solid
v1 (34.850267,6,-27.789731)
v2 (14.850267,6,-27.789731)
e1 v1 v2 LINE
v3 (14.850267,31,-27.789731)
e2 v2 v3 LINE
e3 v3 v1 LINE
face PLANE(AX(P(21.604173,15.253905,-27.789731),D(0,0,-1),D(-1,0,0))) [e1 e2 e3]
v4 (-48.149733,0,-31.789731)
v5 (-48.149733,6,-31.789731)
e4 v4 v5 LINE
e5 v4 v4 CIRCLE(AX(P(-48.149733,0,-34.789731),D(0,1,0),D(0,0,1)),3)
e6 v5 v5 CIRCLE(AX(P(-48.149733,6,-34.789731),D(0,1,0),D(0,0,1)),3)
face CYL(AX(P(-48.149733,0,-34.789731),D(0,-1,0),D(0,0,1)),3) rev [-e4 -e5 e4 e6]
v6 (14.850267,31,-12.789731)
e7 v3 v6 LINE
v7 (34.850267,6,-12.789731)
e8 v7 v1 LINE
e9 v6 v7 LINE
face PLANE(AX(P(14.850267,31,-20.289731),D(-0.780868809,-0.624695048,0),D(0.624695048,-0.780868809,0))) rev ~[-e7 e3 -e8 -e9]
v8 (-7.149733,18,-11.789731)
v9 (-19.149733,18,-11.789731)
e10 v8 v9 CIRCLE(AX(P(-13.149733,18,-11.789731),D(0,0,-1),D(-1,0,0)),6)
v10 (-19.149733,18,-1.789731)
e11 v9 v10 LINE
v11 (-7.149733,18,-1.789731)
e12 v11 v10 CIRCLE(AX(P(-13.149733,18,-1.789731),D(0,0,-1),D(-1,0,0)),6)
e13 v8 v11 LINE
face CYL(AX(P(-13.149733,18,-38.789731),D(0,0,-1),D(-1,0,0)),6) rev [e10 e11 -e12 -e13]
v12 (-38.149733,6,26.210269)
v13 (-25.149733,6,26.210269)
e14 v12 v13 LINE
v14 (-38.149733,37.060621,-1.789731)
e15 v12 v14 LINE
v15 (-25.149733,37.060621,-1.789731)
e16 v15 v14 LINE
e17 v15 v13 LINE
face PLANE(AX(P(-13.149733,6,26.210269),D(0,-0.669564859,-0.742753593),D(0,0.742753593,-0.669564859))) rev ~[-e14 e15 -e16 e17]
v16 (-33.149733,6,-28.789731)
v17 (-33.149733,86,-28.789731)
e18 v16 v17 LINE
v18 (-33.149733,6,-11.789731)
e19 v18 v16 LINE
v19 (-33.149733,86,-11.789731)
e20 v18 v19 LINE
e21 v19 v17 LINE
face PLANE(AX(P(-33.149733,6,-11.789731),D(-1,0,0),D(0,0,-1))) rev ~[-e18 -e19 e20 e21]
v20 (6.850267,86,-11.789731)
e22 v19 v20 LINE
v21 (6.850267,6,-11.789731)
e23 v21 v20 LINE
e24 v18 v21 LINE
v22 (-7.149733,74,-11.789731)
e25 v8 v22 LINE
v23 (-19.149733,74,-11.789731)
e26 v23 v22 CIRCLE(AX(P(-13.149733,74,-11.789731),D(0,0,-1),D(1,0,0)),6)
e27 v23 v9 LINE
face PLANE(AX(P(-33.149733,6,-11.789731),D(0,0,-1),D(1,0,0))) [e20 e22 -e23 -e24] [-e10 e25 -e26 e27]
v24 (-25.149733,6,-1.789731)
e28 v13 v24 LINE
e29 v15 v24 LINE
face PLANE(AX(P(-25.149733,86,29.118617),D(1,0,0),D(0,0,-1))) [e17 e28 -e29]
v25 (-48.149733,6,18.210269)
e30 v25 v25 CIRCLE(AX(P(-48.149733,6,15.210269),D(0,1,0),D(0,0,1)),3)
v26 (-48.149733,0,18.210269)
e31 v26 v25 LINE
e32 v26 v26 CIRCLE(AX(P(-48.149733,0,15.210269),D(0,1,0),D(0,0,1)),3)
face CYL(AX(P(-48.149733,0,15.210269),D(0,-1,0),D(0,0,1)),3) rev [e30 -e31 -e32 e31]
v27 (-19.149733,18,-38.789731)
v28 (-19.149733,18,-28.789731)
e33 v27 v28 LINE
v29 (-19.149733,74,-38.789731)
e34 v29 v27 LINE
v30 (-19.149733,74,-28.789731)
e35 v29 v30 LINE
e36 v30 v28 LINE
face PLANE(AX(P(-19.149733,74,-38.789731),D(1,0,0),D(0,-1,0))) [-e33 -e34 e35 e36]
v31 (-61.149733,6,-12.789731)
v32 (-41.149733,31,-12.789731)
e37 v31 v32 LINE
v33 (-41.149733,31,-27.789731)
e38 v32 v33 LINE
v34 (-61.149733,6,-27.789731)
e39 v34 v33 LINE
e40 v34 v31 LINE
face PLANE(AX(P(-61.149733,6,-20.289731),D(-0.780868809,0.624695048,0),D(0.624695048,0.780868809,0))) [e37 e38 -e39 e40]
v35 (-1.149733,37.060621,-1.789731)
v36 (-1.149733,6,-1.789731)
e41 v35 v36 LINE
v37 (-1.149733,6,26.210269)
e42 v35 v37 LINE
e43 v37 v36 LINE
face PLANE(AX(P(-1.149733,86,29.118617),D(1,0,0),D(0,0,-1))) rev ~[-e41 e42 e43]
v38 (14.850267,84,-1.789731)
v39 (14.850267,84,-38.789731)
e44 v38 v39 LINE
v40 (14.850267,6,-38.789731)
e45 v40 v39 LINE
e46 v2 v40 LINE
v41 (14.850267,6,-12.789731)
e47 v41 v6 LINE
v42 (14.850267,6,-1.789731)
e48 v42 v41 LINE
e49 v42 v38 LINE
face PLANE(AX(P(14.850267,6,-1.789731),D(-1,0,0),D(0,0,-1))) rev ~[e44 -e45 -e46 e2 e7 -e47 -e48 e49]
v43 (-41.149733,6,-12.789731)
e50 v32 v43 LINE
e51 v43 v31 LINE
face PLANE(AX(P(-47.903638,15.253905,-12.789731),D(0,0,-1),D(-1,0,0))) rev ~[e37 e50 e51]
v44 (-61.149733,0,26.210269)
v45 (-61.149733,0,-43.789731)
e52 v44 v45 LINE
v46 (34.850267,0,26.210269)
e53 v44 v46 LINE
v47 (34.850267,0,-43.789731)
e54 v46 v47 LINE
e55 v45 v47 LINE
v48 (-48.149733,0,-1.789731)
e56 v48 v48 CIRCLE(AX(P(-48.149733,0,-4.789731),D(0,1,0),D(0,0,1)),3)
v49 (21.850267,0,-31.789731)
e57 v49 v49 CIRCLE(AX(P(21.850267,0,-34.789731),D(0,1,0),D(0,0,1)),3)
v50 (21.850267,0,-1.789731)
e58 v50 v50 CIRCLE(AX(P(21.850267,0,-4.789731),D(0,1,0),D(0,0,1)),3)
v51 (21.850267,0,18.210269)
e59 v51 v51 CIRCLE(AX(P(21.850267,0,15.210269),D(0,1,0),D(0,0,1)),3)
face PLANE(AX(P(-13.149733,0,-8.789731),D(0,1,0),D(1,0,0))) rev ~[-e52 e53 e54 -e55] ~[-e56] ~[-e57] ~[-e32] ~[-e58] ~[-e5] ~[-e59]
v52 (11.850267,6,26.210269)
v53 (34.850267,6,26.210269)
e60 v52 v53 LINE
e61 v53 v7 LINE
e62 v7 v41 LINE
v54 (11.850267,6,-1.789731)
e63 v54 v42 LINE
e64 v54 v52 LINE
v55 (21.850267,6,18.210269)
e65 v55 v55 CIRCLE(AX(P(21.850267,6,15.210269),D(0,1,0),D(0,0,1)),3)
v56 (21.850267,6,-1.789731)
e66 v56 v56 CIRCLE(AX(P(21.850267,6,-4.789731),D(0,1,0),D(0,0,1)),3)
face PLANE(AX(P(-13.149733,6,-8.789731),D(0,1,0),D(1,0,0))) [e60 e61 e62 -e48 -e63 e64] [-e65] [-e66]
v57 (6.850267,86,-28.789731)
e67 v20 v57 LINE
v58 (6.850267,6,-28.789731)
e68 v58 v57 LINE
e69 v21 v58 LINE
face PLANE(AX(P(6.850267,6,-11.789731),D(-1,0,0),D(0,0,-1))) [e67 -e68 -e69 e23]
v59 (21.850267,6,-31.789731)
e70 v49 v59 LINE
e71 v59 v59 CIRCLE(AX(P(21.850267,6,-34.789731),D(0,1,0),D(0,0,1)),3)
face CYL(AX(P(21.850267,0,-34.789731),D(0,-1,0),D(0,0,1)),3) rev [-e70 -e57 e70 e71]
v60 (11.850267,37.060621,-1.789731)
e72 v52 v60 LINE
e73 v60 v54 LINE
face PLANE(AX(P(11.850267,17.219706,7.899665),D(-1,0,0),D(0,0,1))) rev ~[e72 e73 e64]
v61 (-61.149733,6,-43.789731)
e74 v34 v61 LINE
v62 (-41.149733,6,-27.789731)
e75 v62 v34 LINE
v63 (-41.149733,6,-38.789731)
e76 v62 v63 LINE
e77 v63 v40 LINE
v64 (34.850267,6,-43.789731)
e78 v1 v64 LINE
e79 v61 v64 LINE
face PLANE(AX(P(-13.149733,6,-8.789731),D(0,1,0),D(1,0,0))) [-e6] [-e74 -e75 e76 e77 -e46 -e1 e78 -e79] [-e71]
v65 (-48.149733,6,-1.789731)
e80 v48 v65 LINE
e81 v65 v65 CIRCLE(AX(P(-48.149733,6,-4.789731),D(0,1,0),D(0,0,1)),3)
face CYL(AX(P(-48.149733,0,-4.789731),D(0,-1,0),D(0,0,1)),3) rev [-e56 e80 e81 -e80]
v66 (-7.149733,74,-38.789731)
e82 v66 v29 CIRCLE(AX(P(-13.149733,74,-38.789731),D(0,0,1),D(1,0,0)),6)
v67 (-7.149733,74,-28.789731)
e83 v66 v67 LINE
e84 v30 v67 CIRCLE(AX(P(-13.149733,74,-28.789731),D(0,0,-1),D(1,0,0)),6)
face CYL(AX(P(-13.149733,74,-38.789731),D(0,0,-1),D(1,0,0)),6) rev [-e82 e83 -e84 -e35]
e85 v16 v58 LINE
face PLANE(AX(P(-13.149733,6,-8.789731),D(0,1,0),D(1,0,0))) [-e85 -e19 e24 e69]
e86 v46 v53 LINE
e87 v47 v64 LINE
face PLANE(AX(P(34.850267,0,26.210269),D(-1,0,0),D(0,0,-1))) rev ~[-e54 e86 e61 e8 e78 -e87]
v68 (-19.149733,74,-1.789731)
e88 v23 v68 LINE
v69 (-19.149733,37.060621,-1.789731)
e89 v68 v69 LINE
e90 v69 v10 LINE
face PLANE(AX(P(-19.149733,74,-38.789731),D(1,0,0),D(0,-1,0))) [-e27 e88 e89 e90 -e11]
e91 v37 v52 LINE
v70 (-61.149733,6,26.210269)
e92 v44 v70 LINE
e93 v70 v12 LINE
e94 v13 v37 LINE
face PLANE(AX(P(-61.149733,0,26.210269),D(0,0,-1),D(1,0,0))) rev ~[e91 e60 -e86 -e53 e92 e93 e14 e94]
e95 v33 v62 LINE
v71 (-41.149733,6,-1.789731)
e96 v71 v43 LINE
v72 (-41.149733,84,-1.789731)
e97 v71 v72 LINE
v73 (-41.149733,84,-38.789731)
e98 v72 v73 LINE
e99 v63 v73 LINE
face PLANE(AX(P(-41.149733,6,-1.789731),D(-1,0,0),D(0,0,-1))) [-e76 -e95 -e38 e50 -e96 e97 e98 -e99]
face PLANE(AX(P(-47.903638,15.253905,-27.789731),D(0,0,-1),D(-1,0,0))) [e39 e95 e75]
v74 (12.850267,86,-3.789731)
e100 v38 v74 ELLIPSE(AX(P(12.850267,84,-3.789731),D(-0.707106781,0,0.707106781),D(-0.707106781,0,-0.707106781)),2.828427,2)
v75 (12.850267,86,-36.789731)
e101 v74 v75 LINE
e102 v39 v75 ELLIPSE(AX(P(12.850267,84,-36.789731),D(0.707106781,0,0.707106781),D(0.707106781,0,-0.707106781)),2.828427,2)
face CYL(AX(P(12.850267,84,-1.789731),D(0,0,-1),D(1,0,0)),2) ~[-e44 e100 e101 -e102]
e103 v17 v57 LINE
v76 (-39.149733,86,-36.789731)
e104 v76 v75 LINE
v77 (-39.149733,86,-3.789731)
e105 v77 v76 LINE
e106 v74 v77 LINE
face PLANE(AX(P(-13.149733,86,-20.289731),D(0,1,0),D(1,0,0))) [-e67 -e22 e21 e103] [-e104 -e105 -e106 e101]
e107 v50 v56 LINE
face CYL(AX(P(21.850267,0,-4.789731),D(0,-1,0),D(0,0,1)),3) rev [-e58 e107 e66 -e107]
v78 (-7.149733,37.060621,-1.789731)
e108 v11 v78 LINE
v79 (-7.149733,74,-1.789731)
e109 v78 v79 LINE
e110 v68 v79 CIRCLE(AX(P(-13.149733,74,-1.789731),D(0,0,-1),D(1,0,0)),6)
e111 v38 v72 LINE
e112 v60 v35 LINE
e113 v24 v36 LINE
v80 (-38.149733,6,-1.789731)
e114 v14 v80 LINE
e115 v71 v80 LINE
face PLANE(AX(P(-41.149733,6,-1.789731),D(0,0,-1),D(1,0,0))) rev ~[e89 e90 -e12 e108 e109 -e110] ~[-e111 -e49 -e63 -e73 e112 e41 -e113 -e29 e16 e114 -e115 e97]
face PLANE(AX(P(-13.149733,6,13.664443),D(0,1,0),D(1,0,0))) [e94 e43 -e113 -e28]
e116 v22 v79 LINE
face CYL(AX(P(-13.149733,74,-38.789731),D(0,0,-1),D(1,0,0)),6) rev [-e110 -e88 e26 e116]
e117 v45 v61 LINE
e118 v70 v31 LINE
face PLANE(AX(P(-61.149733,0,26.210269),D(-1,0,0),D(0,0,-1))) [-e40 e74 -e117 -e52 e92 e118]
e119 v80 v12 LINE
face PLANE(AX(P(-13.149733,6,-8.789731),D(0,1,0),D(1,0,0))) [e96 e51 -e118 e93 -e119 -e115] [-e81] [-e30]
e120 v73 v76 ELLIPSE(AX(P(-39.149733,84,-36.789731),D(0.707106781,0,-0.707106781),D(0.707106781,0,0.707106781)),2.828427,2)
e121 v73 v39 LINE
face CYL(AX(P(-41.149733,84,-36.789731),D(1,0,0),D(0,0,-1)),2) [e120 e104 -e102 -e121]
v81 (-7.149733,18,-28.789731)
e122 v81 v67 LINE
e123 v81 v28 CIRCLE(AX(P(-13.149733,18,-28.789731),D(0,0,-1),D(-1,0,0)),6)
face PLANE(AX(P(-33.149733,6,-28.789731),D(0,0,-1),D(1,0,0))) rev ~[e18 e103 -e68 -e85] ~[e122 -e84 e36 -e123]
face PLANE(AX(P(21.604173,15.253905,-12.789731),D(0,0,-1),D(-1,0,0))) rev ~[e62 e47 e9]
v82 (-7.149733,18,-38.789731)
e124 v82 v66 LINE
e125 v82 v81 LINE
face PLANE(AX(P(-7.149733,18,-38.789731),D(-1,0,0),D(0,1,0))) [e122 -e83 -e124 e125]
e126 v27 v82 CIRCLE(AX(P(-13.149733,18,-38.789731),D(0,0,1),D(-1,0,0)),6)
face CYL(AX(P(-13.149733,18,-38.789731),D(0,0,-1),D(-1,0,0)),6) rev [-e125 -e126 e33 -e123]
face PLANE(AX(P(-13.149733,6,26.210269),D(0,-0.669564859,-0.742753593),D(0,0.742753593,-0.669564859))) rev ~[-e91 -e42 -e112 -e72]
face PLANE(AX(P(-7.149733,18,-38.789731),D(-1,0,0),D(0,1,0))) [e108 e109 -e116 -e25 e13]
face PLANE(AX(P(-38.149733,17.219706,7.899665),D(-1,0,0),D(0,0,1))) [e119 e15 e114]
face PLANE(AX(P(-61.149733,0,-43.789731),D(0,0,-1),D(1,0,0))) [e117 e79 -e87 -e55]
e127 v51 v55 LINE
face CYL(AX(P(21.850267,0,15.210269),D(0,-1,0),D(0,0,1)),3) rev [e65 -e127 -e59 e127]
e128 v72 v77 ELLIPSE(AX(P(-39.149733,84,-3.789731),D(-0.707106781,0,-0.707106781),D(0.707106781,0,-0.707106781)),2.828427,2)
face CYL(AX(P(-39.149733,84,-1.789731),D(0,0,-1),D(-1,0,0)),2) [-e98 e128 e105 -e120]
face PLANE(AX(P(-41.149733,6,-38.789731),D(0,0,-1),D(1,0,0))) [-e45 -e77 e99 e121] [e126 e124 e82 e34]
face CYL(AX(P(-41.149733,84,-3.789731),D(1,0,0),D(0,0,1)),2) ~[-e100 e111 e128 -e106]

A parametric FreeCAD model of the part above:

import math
import FreeCAD as App
import Part
import Sketcher

V = App.Vector
Q = App.Units.Quantity


def edges_at(feature, points):
    """Names of the edges that pass closest to the given points."""
    edges = feature.Shape.Edges
    near = lambda p: min(range(len(edges)), key=lambda i: edges[i].distToShape(Part.Vertex(*p))[0])
    return sorted({f"Edge{near(p) + 1}" for p in points})

doc = App.newDocument("Part")
body = doc.addObject("PartDesign::Body", "Body")

sketch1 = body.newObject("Sketcher::SketchObject", "Sketch")
sketch1.AttachmentSupport = (doc.getObject("XZ_Plane"), [""])
sketch1.MapMode = "FlatFace"
sketch1.addGeometry([
    Part.LineSegment(V(-61.1, -43.8, 0), V(-61.1, 26.2, 0)),
    Part.LineSegment(V(-61.1, 26.2, 0), V(34.9, 26.2, 0)),
    Part.LineSegment(V(34.9, 26.2, 0), V(34.9, -43.8, 0)),
    Part.LineSegment(V(34.9, -43.8, 0), V(-61.1, -43.8, 0)),
    Part.Circle(V(-48.1, 15.2, 0), V(0, 0, 1), 3),
    Part.Circle(V(-48.1, -4.8, 0), V(0, 0, 1), 3),
    Part.Circle(V(21.9, 15.2, 0), V(0, 0, 1), 3),
    Part.Circle(V(21.9, -4.8, 0), V(0, 0, 1), 3),
    Part.Circle(V(-48.1, -34.8, 0), V(0, 0, 1), 3),
    Part.Circle(V(21.9, -34.8, 0), V(0, 0, 1), 3),
], False)
sketch1.addConstraint([
    Sketcher.Constraint("Coincident", 0, 2, 1, 1),
    Sketcher.Constraint("Coincident", 1, 2, 2, 1),
    Sketcher.Constraint("Coincident", 2, 2, 3, 1),
    Sketcher.Constraint("Coincident", 3, 2, 0, 1),
    Sketcher.Constraint("Vertical", 0),
    Sketcher.Constraint("Horizontal", 1),
    Sketcher.Constraint("Vertical", 2),
    Sketcher.Constraint("Horizontal", 3),
    Sketcher.Constraint("Equal", 4, 5),
    Sketcher.Constraint("Equal", 5, 6),
    Sketcher.Constraint("Equal", 6, 7),
    Sketcher.Constraint("Equal", 7, 8),
    Sketcher.Constraint("Equal", 8, 9),
    Sketcher.Constraint("Horizontal", 4, 3, 6, 3),
    Sketcher.Constraint("Horizontal", 5, 3, 7, 3),
    Sketcher.Constraint("Horizontal", 8, 3, 9, 3),
    Sketcher.Constraint("Vertical", 4, 3, 5, 3),
    Sketcher.Constraint("Vertical", 6, 3, 7, 3),
    Sketcher.Constraint("Vertical", 5, 3, 8, 3),
    Sketcher.Constraint("Vertical", 7, 3, 9, 3),
    Sketcher.Constraint("Diameter", 4, Q("6 mm")),
    Sketcher.Constraint("DistanceX", 1, 1, 1, 2, Q("96 mm")),
    Sketcher.Constraint("DistanceY", 0, 1, 0, 2, Q("70 mm")),
    Sketcher.Constraint("DistanceY", 5, 3, 4, 3, Q("20 mm")),
    Sketcher.Constraint("DistanceX", 4, 3, 6, 3, Q("70 mm")),
    Sketcher.Constraint("DistanceY", 8, 3, 5, 3, Q("30 mm")),
    Sketcher.Constraint("DistanceX", 0, 2, 4, 3, Q("13 mm")),
    Sketcher.Constraint("DistanceY", 4, 3, 0, 2, Q("11 mm")),
    Sketcher.Constraint("DistanceY", -1, 1, 4, 3, Q("15.210269 mm")),
    Sketcher.Constraint("DistanceX", 4, 3, -1, 1, Q("48.149733 mm")),
])
pad1 = body.newObject("PartDesign::Pad", "Pad")
pad1.Profile = sketch1
pad1.Length = 6
pad1.Reversed = True

sketch2 = body.newObject("Sketcher::SketchObject", "Sketch001")
sketch2.AttachmentSupport = (doc.getObject("XZ_Plane"), [""])
sketch2.MapMode = "FlatFace"
sketch2.AttachmentOffset = App.Placement(V(0, 0, -6), App.Rotation())
sketch2.addGeometry([
    Part.LineSegment(V(-41, -39, 0), V(-41, -2, 0)),
    Part.LineSegment(V(-41, -2, 0), V(15, -2, 0)),
    Part.LineSegment(V(15, -2, 0), V(15, -39, 0)),
    Part.LineSegment(V(15, -39, 0), V(-41, -39, 0)),
    Part.LineSegment(V(7, -12, 0), V(-33, -12, 0)),
    Part.LineSegment(V(-33, -12, 0), V(-33, -29, 0)),
    Part.LineSegment(V(-33, -29, 0), V(7, -29, 0)),
    Part.LineSegment(V(7, -29, 0), V(7, -12, 0)),
], False)
sketch2.addConstraint([
    Sketcher.Constraint("Coincident", 0, 2, 1, 1),
    Sketcher.Constraint("Coincident", 1, 2, 2, 1),
    Sketcher.Constraint("Coincident", 2, 2, 3, 1),
    Sketcher.Constraint("Coincident", 3, 2, 0, 1),
    Sketcher.Constraint("Coincident", 4, 2, 5, 1),
    Sketcher.Constraint("Coincident", 5, 2, 6, 1),
    Sketcher.Constraint("Coincident", 6, 2, 7, 1),
    Sketcher.Constraint("Coincident", 7, 2, 4, 1),
    Sketcher.Constraint("Vertical", 0),
    Sketcher.Constraint("Horizontal", 1),
    Sketcher.Constraint("Vertical", 2),
    Sketcher.Constraint("Horizontal", 3),
    Sketcher.Constraint("Horizontal", 4),
    Sketcher.Constraint("Vertical", 5),
    Sketcher.Constraint("Horizontal", 6),
    Sketcher.Constraint("Vertical", 7),
    Sketcher.Constraint("DistanceX", 1, 1, 1, 2, Q("56 mm")),
    Sketcher.Constraint("DistanceX", 4, 2, 4, 1, Q("40 mm")),
    Sketcher.Constraint("DistanceY", 0, 1, 0, 2, Q("37 mm")),
    Sketcher.Constraint("DistanceY", 5, 2, 5, 1, Q("17 mm")),
    Sketcher.Constraint("DistanceX", 0, 2, 4, 2, Q("8 mm")),
    Sketcher.Constraint("DistanceY", 4, 2, 0, 2, Q("10 mm")),
    Sketcher.Constraint("DistanceY", 0, 2, -1, 1, Q("1.789731 mm")),
    Sketcher.Constraint("DistanceX", 0, 2, -1, 1, Q("41.149733 mm")),
])
pad2 = body.newObject("PartDesign::Pad", "Pad001")
pad2.Profile = sketch2
pad2.Length = 80
pad2.Reversed = True

sketch3 = body.newObject("Sketcher::SketchObject", "Sketch002")
sketch3.AttachmentSupport = (doc.getObject("XY_Plane"), [""])
sketch3.MapMode = "FlatFace"
sketch3.AttachmentOffset = App.Placement(V(0, 0, -20.289731), App.Rotation())
sketch3.addGeometry([
    Part.LineSegment(V(-41, 31, 0), V(-61, 6, 0)),
    Part.LineSegment(V(-61, 6, 0), V(-41, 6, 0)),
    Part.LineSegment(V(-41, 6, 0), V(-41, 31, 0)),
    Part.LineSegment(V(35, 6, 0), V(15, 31, 0)),
    Part.LineSegment(V(15, 31, 0), V(15, 6, 0)),
    Part.LineSegment(V(15, 6, 0), V(35, 6, 0)),
], False)
sketch3.addConstraint([
    Sketcher.Constraint("Coincident", 0, 2, 1, 1),
    Sketcher.Constraint("Coincident", 1, 2, 2, 1),
    Sketcher.Constraint("Coincident", 2, 2, 0, 1),
    Sketcher.Constraint("Coincident", 3, 2, 4, 1),
    Sketcher.Constraint("Coincident", 4, 2, 5, 1),
    Sketcher.Constraint("Coincident", 5, 2, 3, 1),
    Sketcher.Constraint("Horizontal", 1),
    Sketcher.Constraint("Vertical", 2),
    Sketcher.Constraint("Vertical", 4),
    Sketcher.Constraint("Horizontal", 5),
    Sketcher.Constraint("Horizontal", 2, 2, 3, 2),
    Sketcher.Constraint("Horizontal", 1, 2, 4, 2),
    Sketcher.Constraint("Equal", 1, 5),
    Sketcher.Constraint("DistanceX", 1, 1, 1, 2, Q("20 mm")),
    Sketcher.Constraint("DistanceY", 2, 1, 2, 2, Q("25 mm")),
    Sketcher.Constraint("DistanceY", -1, 1, 0, 2, Q("6 mm")),
    Sketcher.Constraint("DistanceX", 2, 2, 3, 2, Q("56 mm")),
    Sketcher.Constraint("DistanceX", 0, 2, -1, 1, Q("61.149733 mm")),
])
pad3 = body.newObject("PartDesign::Pad", "Pad002")
pad3.Profile = sketch3
pad3.Length = 15
pad3.Midplane = True

sketch4 = body.newObject("Sketcher::SketchObject", "Sketch003")
sketch4.AttachmentSupport = (doc.getObject("YZ_Plane"), [""])
sketch4.MapMode = "FlatFace"
sketch4.AttachmentOffset = App.Placement(V(0, 0, -13.149733), App.Rotation())
sketch4.addGeometry([
    Part.LineSegment(V(37, -2, 0), V(6, 26, 0)),
    Part.LineSegment(V(6, 26, 0), V(6, -2, 0)),
    Part.LineSegment(V(6, -2, 0), V(37, -2, 0)),
], False)
sketch4.addConstraint([
    Sketcher.Constraint("Coincident", 0, 2, 1, 1),
    Sketcher.Constraint("Coincident", 1, 2, 2, 1),
    Sketcher.Constraint("Coincident", 2, 2, 0, 1),
    Sketcher.Constraint("Vertical", 1),
    Sketcher.Constraint("Horizontal", 2),
    Sketcher.Constraint("DistanceY", 1, 2, 1, 1, Q("28 mm")),
    Sketcher.Constraint("DistanceX", -1, 1, 0, 2, Q("6 mm")),
    Sketcher.Constraint("DistanceX", 2, 1, 2, 2, Q("31.060621 mm")),
    Sketcher.Constraint("DistanceY", -1, 1, 0, 2, Q("26.210269 mm")),
])
pad4 = body.newObject("PartDesign::Pad", "Pad003")
pad4.Profile = sketch4
pad4.Length = 50
pad4.Midplane = True

sketch5 = body.newObject("Sketcher::SketchObject", "Sketch004")
sketch5.AttachmentSupport = (doc.getObject("XY_Plane"), [""])
sketch5.MapMode = "FlatFace"
sketch5.AttachmentOffset = App.Placement(V(0, 0, -38.789731), App.Rotation())
sketch5.addGeometry([
    Part.LineSegment(V(-19, 18, 0), V(-19, 74, 0)),
    Part.ArcOfCircle(Part.Circle(V(-13, 74, 0), V(0, 0, 1), 6), math.radians(0), math.radians(180)),
    Part.LineSegment(V(-7, 74, 0), V(-7, 18, 0)),
    Part.ArcOfCircle(Part.Circle(V(-13, 18, 0), V(0, 0, 1), 6), math.radians(180), math.radians(360)),
], False)
sketch5.addConstraint([
    Sketcher.Constraint("Tangent", 0, 2, 1, 2),
    Sketcher.Constraint("Tangent", 1, 1, 2, 1),
    Sketcher.Constraint("Tangent", 2, 2, 3, 2),
    Sketcher.Constraint("Tangent", 3, 1, 0, 1),
    Sketcher.Constraint("Vertical", 0),
    Sketcher.Constraint("Vertical", 2),
    Sketcher.Constraint("Radius", 1, Q("6 mm")),
    Sketcher.Constraint("DistanceY", 0, 1, 0, 2, Q("56 mm")),
    Sketcher.Constraint("DistanceY", -1, 1, 1, 3, Q("74 mm")),
    Sketcher.Constraint("DistanceX", 1, 3, -1, 1, Q("13.149733 mm")),
])
pocket1 = body.newObject("PartDesign::Pocket", "Pocket")
pocket1.Profile = sketch5
pocket1.Type = "ThroughAll"
pocket1.Reversed = True

sketch6 = body.newObject("Sketcher::SketchObject", "Sketch005")
sketch6.AttachmentSupport = (doc.getObject("XZ_Plane"), [""])
sketch6.MapMode = "FlatFace"
sketch6.AttachmentOffset = App.Placement(V(0, 0, -86), App.Rotation())
sketch6.addGeometry([
    Part.LineSegment(V(-25, -2, 0), V(-25, 29, 0)),
    Part.LineSegment(V(-25, 29, 0), V(-1, 29, 0)),
    Part.LineSegment(V(-1, 29, 0), V(-1, -2, 0)),
    Part.LineSegment(V(-1, -2, 0), V(-25, -2, 0)),
], False)
sketch6.addConstraint([
    Sketcher.Constraint("Coincident", 0, 2, 1, 1),
    Sketcher.Constraint("Coincident", 1, 2, 2, 1),
    Sketcher.Constraint("Coincident", 2, 2, 3, 1),
    Sketcher.Constraint("Coincident", 3, 2, 0, 1),
    Sketcher.Constraint("Vertical", 0),
    Sketcher.Constraint("Horizontal", 1),
    Sketcher.Constraint("Vertical", 2),
    Sketcher.Constraint("Horizontal", 3),
    Sketcher.Constraint("DistanceX", 1, 1, 1, 2, Q("24 mm")),
    Sketcher.Constraint("DistanceY", 0, 1, 0, 2, Q("30.908348 mm")),
    Sketcher.Constraint("DistanceY", 2, 2, -1, 1, Q("1.789731 mm")),
    Sketcher.Constraint("DistanceX", 0, 2, -1, 1, Q("25.149733 mm")),
])
pocket2 = body.newObject("PartDesign::Pocket", "Pocket001")
pocket2.Profile = sketch6
pocket2.Length = 80
pocket2.Reversed = True
doc.recompute()

fillet = body.newObject("PartDesign::Fillet", "Fillet")
fillet.Base = (pocket2, edges_at(pocket2, [
    (14.85, 86, -20.29),
    (-13.15, 86, -38.79),
    (-41.15, 86, -20.29),
    (-13.15, 86, -1.79),
]))
fillet.Radius = 2

doc.recompute()
